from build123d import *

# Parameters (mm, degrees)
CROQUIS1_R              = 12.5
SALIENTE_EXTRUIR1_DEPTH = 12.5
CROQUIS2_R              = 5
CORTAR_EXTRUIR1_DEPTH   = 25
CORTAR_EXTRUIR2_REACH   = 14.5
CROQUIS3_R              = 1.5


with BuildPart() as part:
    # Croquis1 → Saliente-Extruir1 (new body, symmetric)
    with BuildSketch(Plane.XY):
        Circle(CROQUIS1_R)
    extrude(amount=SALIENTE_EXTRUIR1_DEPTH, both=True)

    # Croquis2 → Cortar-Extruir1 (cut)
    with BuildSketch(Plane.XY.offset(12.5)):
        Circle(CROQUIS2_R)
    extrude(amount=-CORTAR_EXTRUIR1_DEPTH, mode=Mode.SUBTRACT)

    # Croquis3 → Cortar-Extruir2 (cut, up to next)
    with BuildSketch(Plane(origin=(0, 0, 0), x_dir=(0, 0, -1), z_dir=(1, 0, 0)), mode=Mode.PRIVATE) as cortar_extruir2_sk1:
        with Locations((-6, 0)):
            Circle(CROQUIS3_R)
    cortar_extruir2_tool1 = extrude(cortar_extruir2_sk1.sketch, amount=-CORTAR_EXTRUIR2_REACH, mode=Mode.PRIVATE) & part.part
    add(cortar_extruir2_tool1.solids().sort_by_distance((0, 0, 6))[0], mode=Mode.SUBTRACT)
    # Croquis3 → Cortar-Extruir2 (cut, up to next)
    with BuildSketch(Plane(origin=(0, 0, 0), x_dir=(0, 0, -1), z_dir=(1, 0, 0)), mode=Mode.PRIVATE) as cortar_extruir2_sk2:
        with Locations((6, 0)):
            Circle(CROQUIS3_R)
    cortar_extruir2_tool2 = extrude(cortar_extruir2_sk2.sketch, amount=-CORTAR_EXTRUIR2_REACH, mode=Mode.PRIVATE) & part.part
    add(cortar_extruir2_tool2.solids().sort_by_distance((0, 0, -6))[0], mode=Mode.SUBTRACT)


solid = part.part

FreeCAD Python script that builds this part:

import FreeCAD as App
import Part
import Sketcher

doc = App.newDocument("Part")
body = doc.addObject("PartDesign::Body", "Body")

# Sketch on XY plane
sketch1 = body.newObject("Sketcher::SketchObject", "Sketch")
sketch1.AttachmentSupport = (doc.getObject("XY_Plane"), [""])
sketch1.MapMode = "FlatFace"
sketch1.addGeometry(Part.Circle(App.Vector(0, 0, 0), App.Vector(0, 0, 1), 12.5), False)
sketch1.addConstraint([
    Sketcher.Constraint("Coincident", 0, 3, -1, 1),
    Sketcher.Constraint("Diameter", 0, 25.0),
])
pad1 = body.newObject("PartDesign::Pad", "Pad")
pad1.Profile = sketch1
pad1.Length = 25
pad1.Midplane = True

# Sketch on XY plane
sketch2 = body.newObject("Sketcher::SketchObject", "Sketch001")
sketch2.AttachmentSupport = (doc.getObject("XY_Plane"), [""])
sketch2.MapMode = "FlatFace"
sketch2.AttachmentOffset = App.Placement(App.Vector(0, 0, 12.5), App.Rotation())
sketch2.addGeometry(Part.Circle(App.Vector(0, 0, 0), App.Vector(0, 0, 1), 5), False)
sketch2.addConstraint([
    Sketcher.Constraint("Coincident", 0, 3, -1, 1),
    Sketcher.Constraint("Diameter", 0, 10.0),
])
pocket1 = body.newObject("PartDesign::Pocket", "Pocket")
pocket1.Profile = sketch2
pocket1.Length = 25

# Sketch on YZ plane
sketch3 = body.newObject("Sketcher::SketchObject", "Sketch002")
sketch3.AttachmentSupport = (doc.getObject("YZ_Plane"), [""])
sketch3.MapMode = "FlatFace"
sketch3.addGeometry(Part.Circle(App.Vector(0, 6, 0), App.Vector(0, 0, 1), 1.5), False)
sketch3.addConstraint([
    Sketcher.Constraint("PointOnObject", 0, 3, -2),
    Sketcher.Constraint("Diameter", 0, 3.0),
    Sketcher.Constraint("DistanceY", -1, 1, 0, 3, 6.0),
])
pocket2 = body.newObject("PartDesign::Pocket", "Pocket001")
pocket2.Profile = sketch3
pocket2.Length = 12.5

# Sketch on YZ plane
sketch4 = body.newObject("Sketcher::SketchObject", "Sketch003")
sketch4.AttachmentSupport = (doc.getObject("YZ_Plane"), [""])
sketch4.MapMode = "FlatFace"
sketch4.addGeometry(Part.Circle(App.Vector(0, -6, 0), App.Vector(0, 0, 1), 1.5), False)
sketch4.addConstraint([
    Sketcher.Constraint("PointOnObject", 0, 3, -2),
    Sketcher.Constraint("Diameter", 0, 3.0),
    Sketcher.Constraint("DistanceY", 0, 3, -1, 1, 6.0),
])
pocket3 = body.newObject("PartDesign::Pocket", "Pocket002")
pocket3.Profile = sketch4
pocket3.Length = 12.5

doc.recompute()
